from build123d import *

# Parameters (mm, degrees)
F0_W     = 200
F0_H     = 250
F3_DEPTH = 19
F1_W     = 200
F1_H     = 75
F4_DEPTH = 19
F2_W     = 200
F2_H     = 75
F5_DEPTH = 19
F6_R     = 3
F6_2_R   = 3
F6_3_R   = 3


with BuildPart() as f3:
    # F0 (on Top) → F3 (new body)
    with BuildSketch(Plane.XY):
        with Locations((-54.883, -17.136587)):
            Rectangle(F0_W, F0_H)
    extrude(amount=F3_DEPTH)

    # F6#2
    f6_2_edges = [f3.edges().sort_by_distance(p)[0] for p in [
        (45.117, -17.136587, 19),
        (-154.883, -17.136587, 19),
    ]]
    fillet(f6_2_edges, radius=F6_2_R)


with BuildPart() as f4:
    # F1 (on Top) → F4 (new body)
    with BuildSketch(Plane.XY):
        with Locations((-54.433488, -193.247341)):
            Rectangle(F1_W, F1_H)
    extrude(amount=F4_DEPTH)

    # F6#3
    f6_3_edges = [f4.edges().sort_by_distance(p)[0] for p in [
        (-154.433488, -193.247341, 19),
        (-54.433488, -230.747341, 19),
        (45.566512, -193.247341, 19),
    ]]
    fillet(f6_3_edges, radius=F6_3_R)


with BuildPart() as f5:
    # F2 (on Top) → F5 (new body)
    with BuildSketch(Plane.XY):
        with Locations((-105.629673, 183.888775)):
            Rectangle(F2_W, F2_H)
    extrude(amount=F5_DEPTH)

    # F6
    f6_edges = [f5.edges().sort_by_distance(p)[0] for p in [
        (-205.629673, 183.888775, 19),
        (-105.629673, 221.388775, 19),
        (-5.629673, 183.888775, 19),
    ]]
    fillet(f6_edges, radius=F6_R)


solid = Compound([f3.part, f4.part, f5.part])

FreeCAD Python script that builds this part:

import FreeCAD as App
import Part
import Sketcher


def edges_at(feature, points):
    """Names of the edges that pass closest to the given points."""
    edges = feature.Shape.Edges
    near = lambda p: min(range(len(edges)), key=lambda i: edges[i].distToShape(Part.Vertex(*p))[0])
    return sorted({f"Edge{near(p) + 1}" for p in points})

doc = App.newDocument("Part")
body = doc.addObject("PartDesign::Body", "Body")

sketch1 = body.newObject("Sketcher::SketchObject", "Sketch")
sketch1.AttachmentSupport = (doc.getObject("XY_Plane"), [""])
sketch1.MapMode = "FlatFace"
sketch1.addGeometry([
    Part.LineSegment(App.Vector(-155, 108, 0), App.Vector(-155, -142, 0)),
    Part.LineSegment(App.Vector(-155, -142, 0), App.Vector(45, -142, 0)),
    Part.LineSegment(App.Vector(45, -142, 0), App.Vector(45, 108, 0)),
    Part.LineSegment(App.Vector(45, 108, 0), App.Vector(-155, 108, 0)),
], False)
sketch1.addConstraint([
    Sketcher.Constraint("Coincident", 0, 2, 1, 1),
    Sketcher.Constraint("Coincident", 1, 2, 2, 1),
    Sketcher.Constraint("Coincident", 2, 2, 3, 1),
    Sketcher.Constraint("Coincident", 3, 2, 0, 1),
    Sketcher.Constraint("Vertical", 0),
    Sketcher.Constraint("Horizontal", 1),
    Sketcher.Constraint("Vertical", 2),
    Sketcher.Constraint("Horizontal", 3),
    Sketcher.Constraint("DistanceX", 1, 1, 1, 2, 200.0),
    Sketcher.Constraint("DistanceY", 0, 2, 0, 1, 250.0),
    Sketcher.Constraint("DistanceX", 0, 2, -1, 1, 154.883),
    Sketcher.Constraint("DistanceY", 0, 2, -1, 1, 142.136587),
])
pad1 = body.newObject("PartDesign::Pad", "Pad")
pad1.Profile = sketch1
pad1.Length = 19
doc.recompute()

fillet = body.newObject("PartDesign::Fillet", "Fillet")
fillet.Base = (pad1, edges_at(pad1, [(45.117, -17.137, 19), (-154.883, -17.137, 19)]))
fillet.Radius = 3
body2 = doc.addObject("PartDesign::Body", "Body001")

sketch2 = body2.newObject("Sketcher::SketchObject", "Sketch001")
sketch2.AttachmentSupport = (doc.getObject("XY_Plane001"), [""])
sketch2.MapMode = "FlatFace"
sketch2.addGeometry([
    Part.LineSegment(App.Vector(-154, -156, 0), App.Vector(-154, -231, 0)),
    Part.LineSegment(App.Vector(-154, -231, 0), App.Vector(46, -231, 0)),
    Part.LineSegment(App.Vector(46, -231, 0), App.Vector(46, -156, 0)),
    Part.LineSegment(App.Vector(46, -156, 0), App.Vector(-154, -156, 0)),
], False)
sketch2.addConstraint([
    Sketcher.Constraint("Coincident", 0, 2, 1, 1),
    Sketcher.Constraint("Coincident", 1, 2, 2, 1),
    Sketcher.Constraint("Coincident", 2, 2, 3, 1),
    Sketcher.Constraint("Coincident", 3, 2, 0, 1),
    Sketcher.Constraint("Vertical", 0),
    Sketcher.Constraint("Horizontal", 1),
    Sketcher.Constraint("Vertical", 2),
    Sketcher.Constraint("Horizontal", 3),
    Sketcher.Constraint("DistanceX", 1, 1, 1, 2, 200.0),
    Sketcher.Constraint("DistanceY", 0, 2, 0, 1, 75.0),
    Sketcher.Constraint("DistanceX", 0, 2, -1, 1, 154.433488),
    Sketcher.Constraint("DistanceY", 0, 2, -1, 1, 230.747341),
])
pad2 = body2.newObject("PartDesign::Pad", "Pad001")
pad2.Profile = sketch2
pad2.Length = 19
doc.recompute()

fillet2 = body2.newObject("PartDesign::Fillet", "Fillet001")
fillet2.Base = (pad2, edges_at(pad2, [(-154.433, -193.247, 19), (-54.433, -230.747, 19), (45.567, -193.247, 19)]))
fillet2.Radius = 3
body3 = doc.addObject("PartDesign::Body", "Body002")

sketch3 = body3.newObject("Sketcher::SketchObject", "Sketch002")
sketch3.AttachmentSupport = (doc.getObject("XY_Plane002"), [""])
sketch3.MapMode = "FlatFace"
sketch3.addGeometry([
    Part.LineSegment(App.Vector(-206, 221, 0), App.Vector(-206, 146, 0)),
    Part.LineSegment(App.Vector(-206, 146, 0), App.Vector(-6, 146, 0)),
    Part.LineSegment(App.Vector(-6, 146, 0), App.Vector(-6, 221, 0)),
    Part.LineSegment(App.Vector(-6, 221, 0), App.Vector(-206, 221, 0)),
], False)
sketch3.addConstraint([
    Sketcher.Constraint("Coincident", 0, 2, 1, 1),
    Sketcher.Constraint("Coincident", 1, 2, 2, 1),
    Sketcher.Constraint("Coincident", 2, 2, 3, 1),
    Sketcher.Constraint("Coincident", 3, 2, 0, 1),
    Sketcher.Constraint("Vertical", 0),
    Sketcher.Constraint("Horizontal", 1),
    Sketcher.Constraint("Vertical", 2),
    Sketcher.Constraint("Horizontal", 3),
    Sketcher.Constraint("DistanceX", 1, 1, 1, 2, 200.0),
    Sketcher.Constraint("DistanceY", 0, 2, 0, 1, 75.0),
    Sketcher.Constraint("DistanceX", 0, 2, -1, 1, 205.629673),
    Sketcher.Constraint("DistanceY", -1, 1, 0, 2, 146.388775),
])
pad3 = body3.newObject("PartDesign::Pad", "Pad002")
pad3.Profile = sketch3
pad3.Length = 19
doc.recompute()

fillet3 = body3.newObject("PartDesign::Fillet", "Fillet002")
fillet3.Base = (pad3, edges_at(pad3, [(-205.63, 183.889, 19), (-105.63, 221.389, 19), (-5.63, 183.889, 19)]))
fillet3.Radius = 3

doc.recompute()
